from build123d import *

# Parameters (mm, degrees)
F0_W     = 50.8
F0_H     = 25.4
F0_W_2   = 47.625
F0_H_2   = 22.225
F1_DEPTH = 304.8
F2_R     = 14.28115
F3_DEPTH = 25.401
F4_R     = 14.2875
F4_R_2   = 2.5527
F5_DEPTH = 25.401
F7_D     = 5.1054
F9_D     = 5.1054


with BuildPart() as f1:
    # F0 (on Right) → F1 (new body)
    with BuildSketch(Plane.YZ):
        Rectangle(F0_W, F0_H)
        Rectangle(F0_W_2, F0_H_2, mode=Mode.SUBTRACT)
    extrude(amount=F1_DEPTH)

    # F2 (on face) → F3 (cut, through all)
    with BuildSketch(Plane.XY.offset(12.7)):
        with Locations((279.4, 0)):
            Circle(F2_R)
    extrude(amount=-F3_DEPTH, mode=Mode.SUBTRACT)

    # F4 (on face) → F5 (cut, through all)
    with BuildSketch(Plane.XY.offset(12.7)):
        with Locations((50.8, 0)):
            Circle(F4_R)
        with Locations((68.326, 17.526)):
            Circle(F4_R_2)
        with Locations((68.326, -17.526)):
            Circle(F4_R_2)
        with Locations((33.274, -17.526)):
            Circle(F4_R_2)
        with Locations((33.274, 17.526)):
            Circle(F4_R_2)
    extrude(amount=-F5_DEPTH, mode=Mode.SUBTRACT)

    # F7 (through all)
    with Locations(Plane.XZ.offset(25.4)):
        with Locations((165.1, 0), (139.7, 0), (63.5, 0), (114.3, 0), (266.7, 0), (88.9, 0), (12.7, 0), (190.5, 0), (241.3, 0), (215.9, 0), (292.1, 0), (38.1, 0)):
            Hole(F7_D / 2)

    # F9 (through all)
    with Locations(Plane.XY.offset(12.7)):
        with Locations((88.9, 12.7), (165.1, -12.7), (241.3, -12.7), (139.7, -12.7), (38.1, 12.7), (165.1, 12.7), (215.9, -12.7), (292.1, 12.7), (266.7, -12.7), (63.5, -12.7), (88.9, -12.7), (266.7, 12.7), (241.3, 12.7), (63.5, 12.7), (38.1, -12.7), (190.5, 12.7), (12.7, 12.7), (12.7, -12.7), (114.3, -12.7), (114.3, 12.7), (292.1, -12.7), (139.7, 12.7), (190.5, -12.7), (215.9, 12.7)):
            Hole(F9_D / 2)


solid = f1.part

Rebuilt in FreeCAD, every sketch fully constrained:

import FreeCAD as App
import Part
import Sketcher
Q = App.Units.Quantity


def add_polygon(sketch, points):
    """Adds a closed chain of lines whose ends are joined by coincident constraints."""
    first, n = sketch.GeometryCount, len(points)
    for a, b in zip(points, points[1:] + points[:1]):
        sketch.addGeometry(Part.LineSegment(App.Vector(*a, 0), App.Vector(*b, 0)), False)
    for i in range(n):
        sketch.addConstraint(Sketcher.Constraint("Coincident", first + i, 2, first + (i + 1) % n, 1))

doc = App.newDocument("Part")
body = doc.addObject("PartDesign::Body", "Body")

# Sketch on YZ plane
sketch1 = doc.addObject("Sketcher::SketchObject", "Sketch")
body.addObject(sketch1)
sketch1.AttachmentSupport = (doc.YZ_Plane, [""])
sketch1.MapMode = "FlatFace"
add_polygon(sketch1, [(-25, 13), (-25, -13), (25, -13), (25, 13)])  # lines 0-3
add_polygon(sketch1, [(24, -11), (-24, -11), (-24, 11), (24, 11)])  # lines 4-7
sketch1.addConstraint([
    Sketcher.Constraint("Vertical", 0),
    Sketcher.Constraint("Horizontal", 1),
    Sketcher.Constraint("Vertical", 2),
    Sketcher.Constraint("Horizontal", 3),
    Sketcher.Constraint("Horizontal", 4),
    Sketcher.Constraint("Vertical", 5),
    Sketcher.Constraint("Horizontal", 6),
    Sketcher.Constraint("Vertical", 7),
    Sketcher.Constraint("Symmetric", 0, 2, 2, 2, -1, 1),
    Sketcher.Constraint("Symmetric", 4, 2, 6, 2, -1, 1),
    Sketcher.Constraint("DistanceX", 1, 1, 1, 2, Q("2 in")),
    Sketcher.Constraint("DistanceY", 0, 2, 0, 1, Q("1 in")),
    Sketcher.Constraint("DistanceX", 4, 2, 4, 1, Q("1.875 in")),
    Sketcher.Constraint("DistanceY", 5, 1, 5, 2, Q("0.875 in")),
])
pad1 = doc.addObject("PartDesign::Pad", "Pad")
body.addObject(pad1)
pad1.Profile = sketch1
pad1.Length = Q("12 in")

# Sketch on XY plane
sketch2 = doc.addObject("Sketcher::SketchObject", "Sketch001")
body.addObject(sketch2)
sketch2.AttachmentSupport = (doc.XY_Plane, [""])
sketch2.MapMode = "FlatFace"
sketch2.AttachmentOffset = App.Placement(App.Vector(0, 0, 0.5 * 25.4), App.Rotation())
sketch2.addGeometry(Part.Circle(App.Vector(279, 0, 0), App.Vector(0, 0, 1), 14), False)
sketch2.addConstraint([
    Sketcher.Constraint("PointOnObject", 0, 3, -1),
    Sketcher.Constraint("DistanceX", -1, 1, 0, 3, Q("11 in")),
    Sketcher.Constraint("Diameter", 0, Q("1.1245 in")),
])
pocket1 = doc.addObject("PartDesign::Pocket", "Pocket")
body.addObject(pocket1)
pocket1.Profile = sketch2
pocket1.Type = "ThroughAll"

# Sketch on XY plane
sketch3 = doc.addObject("Sketcher::SketchObject", "Sketch002")
body.addObject(sketch3)
sketch3.AttachmentSupport = (doc.XY_Plane, [""])
sketch3.MapMode = "FlatFace"
sketch3.AttachmentOffset = App.Placement(App.Vector(0, 0, 0.5 * 25.4), App.Rotation())
sketch3.addGeometry([
    Part.Circle(App.Vector(50.8, 0, 0), App.Vector(0, 0, 1), 14.3),  # 0
    Part.Circle(App.Vector(68.3, 17.5, 0), App.Vector(0, 0, 1), 2.6),  # 1
    Part.Circle(App.Vector(68.3, -17.5, 0), App.Vector(0, 0, 1), 2.6),  # 2
    Part.Circle(App.Vector(33.3, -17.5, 0), App.Vector(0, 0, 1), 2.6),  # 3
    Part.Circle(App.Vector(33.3, 17.5, 0), App.Vector(0, 0, 1), 2.6),  # 4
], False)
sketch3.addConstraint([
    Sketcher.Constraint("Equal", 1, 2),
    Sketcher.Constraint("Equal", 2, 3),
    Sketcher.Constraint("Equal", 3, 4),
    Sketcher.Constraint("Symmetric", 1, 3, 2, 3, -1),
    Sketcher.Constraint("Symmetric", 3, 3, 4, 3, -1),
    Sketcher.Constraint("PointOnObject", 0, 3, -1),
    Sketcher.Constraint("Horizontal", 2, 3, 3, 3),
    Sketcher.Constraint("Diameter", 0, Q("1.125 in")),
    Sketcher.Constraint("Diameter", 1, Q("0.201 in")),
    Sketcher.Constraint("DistanceX", -1, 1, 0, 3, Q("2 in")),
    Sketcher.Constraint("DistanceX", -1, 1, 1, 3, Q("2.69 in")),
    Sketcher.Constraint("DistanceY", -1, 1, 1, 3, Q("0.69 in")),
    Sketcher.Constraint("DistanceX", -1, 1, 3, 3, Q("1.31 in")),
])
pocket2 = doc.addObject("PartDesign::Pocket", "Pocket001")
body.addObject(pocket2)
pocket2.Profile = sketch3
pocket2.Type = "ThroughAll"

# Sketch on XZ plane
sketch4 = doc.addObject("Sketcher::SketchObject", "Sketch003")
body.addObject(sketch4)
sketch4.AttachmentSupport = (doc.XZ_Plane, [""])
sketch4.MapMode = "FlatFace"
sketch4.AttachmentOffset = App.Placement(App.Vector(0, 0, 1 * 25.4), App.Rotation())
sketch4.addGeometry([
    Part.Circle(App.Vector(165.1, 0, 0), App.Vector(0, 0, 1), 2.6),  # 0
    Part.Circle(App.Vector(139.7, 0, 0), App.Vector(0, 0, 1), 2.6),  # 1
    Part.Circle(App.Vector(63.5, 0, 0), App.Vector(0, 0, 1), 2.6),  # 2
    Part.Circle(App.Vector(114.3, 0, 0), App.Vector(0, 0, 1), 2.6),  # 3
    Part.Circle(App.Vector(266.7, 0, 0), App.Vector(0, 0, 1), 2.6),  # 4
    Part.Circle(App.Vector(88.9, 0, 0), App.Vector(0, 0, 1), 2.6),  # 5
    Part.Circle(App.Vector(12.7, 0, 0), App.Vector(0, 0, 1), 2.6),  # 6
    Part.Circle(App.Vector(190.5, 0, 0), App.Vector(0, 0, 1), 2.6),  # 7
    Part.Circle(App.Vector(241.3, 0, 0), App.Vector(0, 0, 1), 2.6),  # 8
    Part.Circle(App.Vector(215.9, 0, 0), App.Vector(0, 0, 1), 2.6),  # 9
    Part.Circle(App.Vector(292.1, 0, 0), App.Vector(0, 0, 1), 2.6),  # 10
    Part.Circle(App.Vector(38.1, 0, 0), App.Vector(0, 0, 1), 2.6),  # 11
], False)
sketch4.addConstraint([
    Sketcher.Constraint("Equal", 0, 1),
    Sketcher.Constraint("Equal", 1, 2),
    Sketcher.Constraint("Equal", 2, 3),
    Sketcher.Constraint("Equal", 3, 4),
    Sketcher.Constraint("Equal", 4, 5),
    Sketcher.Constraint("Equal", 5, 6),
    Sketcher.Constraint("Equal", 6, 7),
    Sketcher.Constraint("Equal", 7, 8),
    Sketcher.Constraint("Equal", 8, 9),
    Sketcher.Constraint("Equal", 9, 10),
    Sketcher.Constraint("Equal", 10, 11),
    Sketcher.Constraint("PointOnObject", 0, 3, -1),
    Sketcher.Constraint("PointOnObject", 1, 3, -1),
    Sketcher.Constraint("PointOnObject", 2, 3, -1),
    Sketcher.Constraint("PointOnObject", 3, 3, -1),
    Sketcher.Constraint("PointOnObject", 4, 3, -1),
    Sketcher.Constraint("PointOnObject", 5, 3, -1),
    Sketcher.Constraint("PointOnObject", 6, 3, -1),
    Sketcher.Constraint("PointOnObject", 7, 3, -1),
    Sketcher.Constraint("PointOnObject", 8, 3, -1),
    Sketcher.Constraint("PointOnObject", 9, 3, -1),
    Sketcher.Constraint("PointOnObject", 10, 3, -1),
    Sketcher.Constraint("PointOnObject", 11, 3, -1),
    Sketcher.Constraint("Diameter", 0, Q("0.201 in")),
    Sketcher.Constraint("DistanceX", 1, 3, 0, 3, Q("1 in")),
    Sketcher.Constraint("DistanceX", 2, 3, 1, 3, Q("3 in")),
    Sketcher.Constraint("DistanceX", 3, 3, 1, 3, Q("1 in")),
    Sketcher.Constraint("DistanceX", 0, 3, 4, 3, Q("4 in")),
    Sketcher.Constraint("DistanceX", 5, 3, 3, 3, Q("1 in")),
    Sketcher.Constraint("DistanceX", 6, 3, 2, 3, Q("2 in")),
    Sketcher.Constraint("DistanceX", 0, 3, 7, 3, Q("1 in")),
    Sketcher.Constraint("DistanceX", 8, 3, 4, 3, Q("1 in")),
    Sketcher.Constraint("DistanceX", 7, 3, 9, 3, Q("1 in")),
    Sketcher.Constraint("DistanceX", 4, 3, 10, 3, Q("1 in")),
    Sketcher.Constraint("DistanceX", 11, 3, 2, 3, Q("1 in")),
    Sketcher.Constraint("DistanceX", -1, 1, 0, 3, Q("6.5 in")),
])
doc.recompute()
hole = doc.addObject("PartDesign::Hole", "Hole")
body.addObject(hole)
hole.Profile = sketch4
hole.ThreadType = "None"
hole.Diameter = Q("0.201 in")
hole.DepthType = "ThroughAll"

# Sketch on XY plane
sketch5 = doc.addObject("Sketcher::SketchObject", "Sketch004")
body.addObject(sketch5)
sketch5.AttachmentSupport = (doc.XY_Plane, [""])
sketch5.MapMode = "FlatFace"
sketch5.AttachmentOffset = App.Placement(App.Vector(0, 0, 0.5 * 25.4), App.Rotation())
sketch5.addGeometry([
    Part.Circle(App.Vector(88.9, 12.7, 0), App.Vector(0, 0, 1), 2.6),  # 0
    Part.Circle(App.Vector(165.1, -12.7, 0), App.Vector(0, 0, 1), 2.6),  # 1
    Part.Circle(App.Vector(241.3, -12.7, 0), App.Vector(0, 0, 1), 2.6),  # 2
    Part.Circle(App.Vector(139.7, -12.7, 0), App.Vector(0, 0, 1), 2.6),  # 3
    Part.Circle(App.Vector(38.1, 12.7, 0), App.Vector(0, 0, 1), 2.6),  # 4
    Part.Circle(App.Vector(165.1, 12.7, 0), App.Vector(0, 0, 1), 2.6),  # 5
    Part.Circle(App.Vector(215.9, -12.7, 0), App.Vector(0, 0, 1), 2.6),  # 6
    Part.Circle(App.Vector(292.1, 12.7, 0), App.Vector(0, 0, 1), 2.6),  # 7
    Part.Circle(App.Vector(266.7, -12.7, 0), App.Vector(0, 0, 1), 2.6),  # 8
    Part.Circle(App.Vector(63.5, -12.7, 0), App.Vector(0, 0, 1), 2.6),  # 9
    Part.Circle(App.Vector(88.9, -12.7, 0), App.Vector(0, 0, 1), 2.6),  # 10
    Part.Circle(App.Vector(266.7, 12.7, 0), App.Vector(0, 0, 1), 2.6),  # 11
    Part.Circle(App.Vector(241.3, 12.7, 0), App.Vector(0, 0, 1), 2.6),  # 12
    Part.Circle(App.Vector(63.5, 12.7, 0), App.Vector(0, 0, 1), 2.6),  # 13
    Part.Circle(App.Vector(38.1, -12.7, 0), App.Vector(0, 0, 1), 2.6),  # 14
    Part.Circle(App.Vector(190.5, 12.7, 0), App.Vector(0, 0, 1), 2.6),  # 15
    Part.Circle(App.Vector(12.7, 12.7, 0), App.Vector(0, 0, 1), 2.6),  # 16
    Part.Circle(App.Vector(12.7, -12.7, 0), App.Vector(0, 0, 1), 2.6),  # 17
    Part.Circle(App.Vector(114.3, -12.7, 0), App.Vector(0, 0, 1), 2.6),  # 18
    Part.Circle(App.Vector(114.3, 12.7, 0), App.Vector(0, 0, 1), 2.6),  # 19
    Part.Circle(App.Vector(292.1, -12.7, 0), App.Vector(0, 0, 1), 2.6),  # 20
    Part.Circle(App.Vector(139.7, 12.7, 0), App.Vector(0, 0, 1), 2.6),  # 21
    Part.Circle(App.Vector(190.5, -12.7, 0), App.Vector(0, 0, 1), 2.6),  # 22
    Part.Circle(App.Vector(215.9, 12.7, 0), App.Vector(0, 0, 1), 2.6),  # 23
], False)
sketch5.addConstraint([
    Sketcher.Constraint("Equal", 0, 1),
    Sketcher.Constraint("Equal", 1, 2),
    Sketcher.Constraint("Equal", 2, 3),
    Sketcher.Constraint("Equal", 3, 4),
    Sketcher.Constraint("Equal", 4, 5),
    Sketcher.Constraint("Equal", 5, 6),
    Sketcher.Constraint("Equal", 6, 7),
    Sketcher.Constraint("Equal", 7, 8),
    Sketcher.Constraint("Equal", 8, 9),
    Sketcher.Constraint("Equal", 9, 10),
    Sketcher.Constraint("Equal", 10, 11),
    Sketcher.Constraint("Equal", 11, 12),
    Sketcher.Constraint("Equal", 12, 13),
    Sketcher.Constraint("Equal", 13, 14),
    Sketcher.Constraint("Equal", 14, 15),
    Sketcher.Constraint("Equal", 15, 16),
    Sketcher.Constraint("Equal", 16, 17),
    Sketcher.Constraint("Equal", 17, 18),
    Sketcher.Constraint("Equal", 18, 19),
    Sketcher.Constraint("Equal", 19, 20),
    Sketcher.Constraint("Equal", 20, 21),
    Sketcher.Constraint("Equal", 21, 22),
    Sketcher.Constraint("Equal", 22, 23),
    Sketcher.Constraint("Symmetric", 1, 3, 5, 3, -1),
    Sketcher.Constraint("Symmetric", 0, 3, 10, 3, -1),
    Sketcher.Constraint("Symmetric", 8, 3, 11, 3, -1),
    Sketcher.Constraint("Symmetric", 2, 3, 12, 3, -1),
    Sketcher.Constraint("Symmetric", 9, 3, 13, 3, -1),
    Sketcher.Constraint("Symmetric", 4, 3, 14, 3, -1),
    Sketcher.Constraint("Symmetric", 16, 3, 17, 3, -1),
    Sketcher.Constraint("Symmetric", 18, 3, 19, 3, -1),
    Sketcher.Constraint("Symmetric", 7, 3, 20, 3, -1),
    Sketcher.Constraint("Symmetric", 3, 3, 21, 3, -1),
    Sketcher.Constraint("Symmetric", 15, 3, 22, 3, -1),
    Sketcher.Constraint("Symmetric", 6, 3, 23, 3, -1),
    Sketcher.Constraint("Horizontal", 1, 3, 2, 3),
    Sketcher.Constraint("Horizontal", 2, 3, 3, 3),
    Sketcher.Constraint("Horizontal", 0, 3, 4, 3),
    Sketcher.Constraint("Horizontal", 4, 3, 5, 3),
    Sketcher.Constraint("Horizontal", 3, 3, 6, 3),
    Sketcher.Constraint("Horizontal", 5, 3, 7, 3),
    Sketcher.Constraint("Horizontal", 6, 3, 8, 3),
    Sketcher.Constraint("Horizontal", 8, 3, 9, 3),
    Sketcher.Constraint("Horizontal", 13, 3, 15, 3),
    Sketcher.Constraint("Horizontal", 15, 3, 16, 3),
    Sketcher.Constraint("Horizontal", 17, 3, 18, 3),
    Sketcher.Constraint("Diameter", 0, Q("0.201 in")),
    Sketcher.Constraint("DistanceX", 0, 3, 1, 3, Q("3 in")),
    Sketcher.Constraint("DistanceY", 1, 3, 0, 3, Q("1 in")),
    Sketcher.Constraint("DistanceX", 1, 3, 2, 3, Q("3 in")),
    Sketcher.Constraint("DistanceX", 3, 3, 1, 3, Q("1 in")),
    Sketcher.Constraint("DistanceX", 4, 3, 0, 3, Q("2 in")),
    Sketcher.Constraint("DistanceX", 6, 3, 2, 3, Q("1 in")),
    Sketcher.Constraint("DistanceX", 2, 3, 7, 3, Q("2 in")),
    Sketcher.Constraint("DistanceX", 2, 3, 8, 3, Q("1 in")),
    Sketcher.Constraint("DistanceX", 9, 3, 0, 3, Q("1 in")),
    Sketcher.Constraint("DistanceX", 5, 3, 15, 3, Q("1 in")),
    Sketcher.Constraint("DistanceX", 16, 3, 4, 3, Q("1 in")),
    Sketcher.Constraint("DistanceX", 18, 3, 3, 3, Q("1 in")),
    Sketcher.Constraint("DistanceX", -1, 1, 0, 3, Q("3.5 in")),
])
doc.recompute()
hole2 = doc.addObject("PartDesign::Hole", "Hole001")
body.addObject(hole2)
hole2.Profile = sketch5
hole2.ThreadType = "None"
hole2.Diameter = Q("0.201 in")
hole2.DepthType = "ThroughAll"

doc.recompute()
